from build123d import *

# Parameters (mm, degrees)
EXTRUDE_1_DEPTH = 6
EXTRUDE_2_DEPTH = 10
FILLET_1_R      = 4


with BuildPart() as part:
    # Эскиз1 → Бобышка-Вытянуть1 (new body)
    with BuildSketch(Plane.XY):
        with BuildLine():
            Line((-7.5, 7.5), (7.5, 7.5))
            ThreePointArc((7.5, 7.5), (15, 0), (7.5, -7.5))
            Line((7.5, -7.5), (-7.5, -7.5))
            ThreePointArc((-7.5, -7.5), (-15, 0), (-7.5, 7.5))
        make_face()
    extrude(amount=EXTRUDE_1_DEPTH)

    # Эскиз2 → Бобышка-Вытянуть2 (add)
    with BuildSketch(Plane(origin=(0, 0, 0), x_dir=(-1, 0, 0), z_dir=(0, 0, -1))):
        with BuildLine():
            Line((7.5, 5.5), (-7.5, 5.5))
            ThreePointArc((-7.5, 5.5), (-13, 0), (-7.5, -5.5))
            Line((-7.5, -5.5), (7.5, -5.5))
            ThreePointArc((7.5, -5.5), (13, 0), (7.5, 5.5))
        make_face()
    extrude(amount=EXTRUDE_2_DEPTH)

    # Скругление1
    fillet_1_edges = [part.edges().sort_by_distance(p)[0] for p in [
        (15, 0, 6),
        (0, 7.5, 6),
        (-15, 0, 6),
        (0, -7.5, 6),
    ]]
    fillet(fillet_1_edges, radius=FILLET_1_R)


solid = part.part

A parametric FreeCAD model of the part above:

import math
import FreeCAD as App
import Part
import Sketcher
from FreeCAD import Vector
Q = App.Units.Quantity


def edges_at(feature, points):
    """Names of the edges that pass closest to the given points."""
    edges = feature.Shape.Edges
    near = lambda p: min(range(len(edges)), key=lambda i: edges[i].distToShape(Part.Vertex(*p))[0])
    return sorted({f"Edge{near(p) + 1}" for p in points})

doc = App.newDocument("Part")
body = doc.addObject("PartDesign::Body", "Body")

# Sketch on XY plane
sketch1 = body.newObject("Sketcher::SketchObject", "Sketch")
sketch1.AttachmentSupport = (doc.getObject("XY_Plane"), [""])
sketch1.MapMode = "FlatFace"
sketch1.addGeometry(Part.LineSegment(Vector(8, 8, 0), Vector(-8, 8, 0)), False)
sketch1.addGeometry(Part.ArcOfCircle(Part.Circle(Vector(-8, 0, 0), Vector(0, 0, 1), 8), math.radians(90), math.radians(270)), False)
sketch1.addGeometry(Part.LineSegment(Vector(-8, -8, 0), Vector(8, -8, 0)), False)
sketch1.addGeometry(Part.ArcOfCircle(Part.Circle(Vector(8, 0, 0), Vector(0, 0, 1), 8), math.radians(-90), math.radians(90)), False)
sketch1.addConstraint(Sketcher.Constraint("Tangent", 0, 2, 1, 1))
sketch1.addConstraint(Sketcher.Constraint("Tangent", 1, 2, 2, 1))
sketch1.addConstraint(Sketcher.Constraint("Tangent", 2, 2, 3, 1))
sketch1.addConstraint(Sketcher.Constraint("Tangent", 3, 2, 0, 1))
sketch1.addConstraint(Sketcher.Constraint("Horizontal", 0))
sketch1.addConstraint(Sketcher.Constraint("Horizontal", 2))
sketch1.addConstraint(Sketcher.Constraint("Symmetric", 1, 3, 3, 3, -1, 1))
sketch1.addConstraint(Sketcher.Constraint("Radius", 1, Q("7.5 mm")))
sketch1.addConstraint(Sketcher.Constraint("DistanceX", 0, 2, 0, 1, Q("15 mm")))
pad1 = body.newObject("PartDesign::Pad", "Pad")
pad1.Profile = sketch1
pad1.Length = 6

# Sketch on XY plane
sketch2 = body.newObject("Sketcher::SketchObject", "Sketch001")
sketch2.AttachmentSupport = (doc.getObject("XY_Plane"), [""])
sketch2.MapMode = "FlatFace"
sketch2.addGeometry(Part.LineSegment(Vector(-8, 6, 0), Vector(8, 6, 0)), False)
sketch2.addGeometry(Part.ArcOfCircle(Part.Circle(Vector(8, 0, 0), Vector(0, 0, 1), 6), math.radians(-90), math.radians(90)), False)
sketch2.addGeometry(Part.LineSegment(Vector(8, -6, 0), Vector(-8, -6, 0)), False)
sketch2.addGeometry(Part.ArcOfCircle(Part.Circle(Vector(-8, 0, 0), Vector(0, 0, 1), 6), math.radians(90), math.radians(270)), False)
sketch2.addConstraint(Sketcher.Constraint("Tangent", 0, 2, 1, 2))
sketch2.addConstraint(Sketcher.Constraint("Tangent", 1, 1, 2, 1))
sketch2.addConstraint(Sketcher.Constraint("Tangent", 2, 2, 3, 2))
sketch2.addConstraint(Sketcher.Constraint("Tangent", 3, 1, 0, 1))
sketch2.addConstraint(Sketcher.Constraint("Horizontal", 0))
sketch2.addConstraint(Sketcher.Constraint("Horizontal", 2))
sketch2.addConstraint(Sketcher.Constraint("Symmetric", 1, 3, 3, 3, -1, 1))
sketch2.addConstraint(Sketcher.Constraint("Radius", 1, Q("5.5 mm")))
sketch2.addConstraint(Sketcher.Constraint("DistanceX", 0, 1, 0, 2, Q("15 mm")))
pad2 = body.newObject("PartDesign::Pad", "Pad001")
pad2.Profile = sketch2
pad2.Length = 10
pad2.Reversed = True
doc.recompute()

fillet = body.newObject("PartDesign::Fillet", "Fillet")
fillet.Base = (pad2, edges_at(pad2, [
    (15, 0, 6),
    (0, 7.5, 6),
    (-15, 0, 6),
    (0, -7.5, 6),
]))
fillet.Radius = 4

doc.recompute()
